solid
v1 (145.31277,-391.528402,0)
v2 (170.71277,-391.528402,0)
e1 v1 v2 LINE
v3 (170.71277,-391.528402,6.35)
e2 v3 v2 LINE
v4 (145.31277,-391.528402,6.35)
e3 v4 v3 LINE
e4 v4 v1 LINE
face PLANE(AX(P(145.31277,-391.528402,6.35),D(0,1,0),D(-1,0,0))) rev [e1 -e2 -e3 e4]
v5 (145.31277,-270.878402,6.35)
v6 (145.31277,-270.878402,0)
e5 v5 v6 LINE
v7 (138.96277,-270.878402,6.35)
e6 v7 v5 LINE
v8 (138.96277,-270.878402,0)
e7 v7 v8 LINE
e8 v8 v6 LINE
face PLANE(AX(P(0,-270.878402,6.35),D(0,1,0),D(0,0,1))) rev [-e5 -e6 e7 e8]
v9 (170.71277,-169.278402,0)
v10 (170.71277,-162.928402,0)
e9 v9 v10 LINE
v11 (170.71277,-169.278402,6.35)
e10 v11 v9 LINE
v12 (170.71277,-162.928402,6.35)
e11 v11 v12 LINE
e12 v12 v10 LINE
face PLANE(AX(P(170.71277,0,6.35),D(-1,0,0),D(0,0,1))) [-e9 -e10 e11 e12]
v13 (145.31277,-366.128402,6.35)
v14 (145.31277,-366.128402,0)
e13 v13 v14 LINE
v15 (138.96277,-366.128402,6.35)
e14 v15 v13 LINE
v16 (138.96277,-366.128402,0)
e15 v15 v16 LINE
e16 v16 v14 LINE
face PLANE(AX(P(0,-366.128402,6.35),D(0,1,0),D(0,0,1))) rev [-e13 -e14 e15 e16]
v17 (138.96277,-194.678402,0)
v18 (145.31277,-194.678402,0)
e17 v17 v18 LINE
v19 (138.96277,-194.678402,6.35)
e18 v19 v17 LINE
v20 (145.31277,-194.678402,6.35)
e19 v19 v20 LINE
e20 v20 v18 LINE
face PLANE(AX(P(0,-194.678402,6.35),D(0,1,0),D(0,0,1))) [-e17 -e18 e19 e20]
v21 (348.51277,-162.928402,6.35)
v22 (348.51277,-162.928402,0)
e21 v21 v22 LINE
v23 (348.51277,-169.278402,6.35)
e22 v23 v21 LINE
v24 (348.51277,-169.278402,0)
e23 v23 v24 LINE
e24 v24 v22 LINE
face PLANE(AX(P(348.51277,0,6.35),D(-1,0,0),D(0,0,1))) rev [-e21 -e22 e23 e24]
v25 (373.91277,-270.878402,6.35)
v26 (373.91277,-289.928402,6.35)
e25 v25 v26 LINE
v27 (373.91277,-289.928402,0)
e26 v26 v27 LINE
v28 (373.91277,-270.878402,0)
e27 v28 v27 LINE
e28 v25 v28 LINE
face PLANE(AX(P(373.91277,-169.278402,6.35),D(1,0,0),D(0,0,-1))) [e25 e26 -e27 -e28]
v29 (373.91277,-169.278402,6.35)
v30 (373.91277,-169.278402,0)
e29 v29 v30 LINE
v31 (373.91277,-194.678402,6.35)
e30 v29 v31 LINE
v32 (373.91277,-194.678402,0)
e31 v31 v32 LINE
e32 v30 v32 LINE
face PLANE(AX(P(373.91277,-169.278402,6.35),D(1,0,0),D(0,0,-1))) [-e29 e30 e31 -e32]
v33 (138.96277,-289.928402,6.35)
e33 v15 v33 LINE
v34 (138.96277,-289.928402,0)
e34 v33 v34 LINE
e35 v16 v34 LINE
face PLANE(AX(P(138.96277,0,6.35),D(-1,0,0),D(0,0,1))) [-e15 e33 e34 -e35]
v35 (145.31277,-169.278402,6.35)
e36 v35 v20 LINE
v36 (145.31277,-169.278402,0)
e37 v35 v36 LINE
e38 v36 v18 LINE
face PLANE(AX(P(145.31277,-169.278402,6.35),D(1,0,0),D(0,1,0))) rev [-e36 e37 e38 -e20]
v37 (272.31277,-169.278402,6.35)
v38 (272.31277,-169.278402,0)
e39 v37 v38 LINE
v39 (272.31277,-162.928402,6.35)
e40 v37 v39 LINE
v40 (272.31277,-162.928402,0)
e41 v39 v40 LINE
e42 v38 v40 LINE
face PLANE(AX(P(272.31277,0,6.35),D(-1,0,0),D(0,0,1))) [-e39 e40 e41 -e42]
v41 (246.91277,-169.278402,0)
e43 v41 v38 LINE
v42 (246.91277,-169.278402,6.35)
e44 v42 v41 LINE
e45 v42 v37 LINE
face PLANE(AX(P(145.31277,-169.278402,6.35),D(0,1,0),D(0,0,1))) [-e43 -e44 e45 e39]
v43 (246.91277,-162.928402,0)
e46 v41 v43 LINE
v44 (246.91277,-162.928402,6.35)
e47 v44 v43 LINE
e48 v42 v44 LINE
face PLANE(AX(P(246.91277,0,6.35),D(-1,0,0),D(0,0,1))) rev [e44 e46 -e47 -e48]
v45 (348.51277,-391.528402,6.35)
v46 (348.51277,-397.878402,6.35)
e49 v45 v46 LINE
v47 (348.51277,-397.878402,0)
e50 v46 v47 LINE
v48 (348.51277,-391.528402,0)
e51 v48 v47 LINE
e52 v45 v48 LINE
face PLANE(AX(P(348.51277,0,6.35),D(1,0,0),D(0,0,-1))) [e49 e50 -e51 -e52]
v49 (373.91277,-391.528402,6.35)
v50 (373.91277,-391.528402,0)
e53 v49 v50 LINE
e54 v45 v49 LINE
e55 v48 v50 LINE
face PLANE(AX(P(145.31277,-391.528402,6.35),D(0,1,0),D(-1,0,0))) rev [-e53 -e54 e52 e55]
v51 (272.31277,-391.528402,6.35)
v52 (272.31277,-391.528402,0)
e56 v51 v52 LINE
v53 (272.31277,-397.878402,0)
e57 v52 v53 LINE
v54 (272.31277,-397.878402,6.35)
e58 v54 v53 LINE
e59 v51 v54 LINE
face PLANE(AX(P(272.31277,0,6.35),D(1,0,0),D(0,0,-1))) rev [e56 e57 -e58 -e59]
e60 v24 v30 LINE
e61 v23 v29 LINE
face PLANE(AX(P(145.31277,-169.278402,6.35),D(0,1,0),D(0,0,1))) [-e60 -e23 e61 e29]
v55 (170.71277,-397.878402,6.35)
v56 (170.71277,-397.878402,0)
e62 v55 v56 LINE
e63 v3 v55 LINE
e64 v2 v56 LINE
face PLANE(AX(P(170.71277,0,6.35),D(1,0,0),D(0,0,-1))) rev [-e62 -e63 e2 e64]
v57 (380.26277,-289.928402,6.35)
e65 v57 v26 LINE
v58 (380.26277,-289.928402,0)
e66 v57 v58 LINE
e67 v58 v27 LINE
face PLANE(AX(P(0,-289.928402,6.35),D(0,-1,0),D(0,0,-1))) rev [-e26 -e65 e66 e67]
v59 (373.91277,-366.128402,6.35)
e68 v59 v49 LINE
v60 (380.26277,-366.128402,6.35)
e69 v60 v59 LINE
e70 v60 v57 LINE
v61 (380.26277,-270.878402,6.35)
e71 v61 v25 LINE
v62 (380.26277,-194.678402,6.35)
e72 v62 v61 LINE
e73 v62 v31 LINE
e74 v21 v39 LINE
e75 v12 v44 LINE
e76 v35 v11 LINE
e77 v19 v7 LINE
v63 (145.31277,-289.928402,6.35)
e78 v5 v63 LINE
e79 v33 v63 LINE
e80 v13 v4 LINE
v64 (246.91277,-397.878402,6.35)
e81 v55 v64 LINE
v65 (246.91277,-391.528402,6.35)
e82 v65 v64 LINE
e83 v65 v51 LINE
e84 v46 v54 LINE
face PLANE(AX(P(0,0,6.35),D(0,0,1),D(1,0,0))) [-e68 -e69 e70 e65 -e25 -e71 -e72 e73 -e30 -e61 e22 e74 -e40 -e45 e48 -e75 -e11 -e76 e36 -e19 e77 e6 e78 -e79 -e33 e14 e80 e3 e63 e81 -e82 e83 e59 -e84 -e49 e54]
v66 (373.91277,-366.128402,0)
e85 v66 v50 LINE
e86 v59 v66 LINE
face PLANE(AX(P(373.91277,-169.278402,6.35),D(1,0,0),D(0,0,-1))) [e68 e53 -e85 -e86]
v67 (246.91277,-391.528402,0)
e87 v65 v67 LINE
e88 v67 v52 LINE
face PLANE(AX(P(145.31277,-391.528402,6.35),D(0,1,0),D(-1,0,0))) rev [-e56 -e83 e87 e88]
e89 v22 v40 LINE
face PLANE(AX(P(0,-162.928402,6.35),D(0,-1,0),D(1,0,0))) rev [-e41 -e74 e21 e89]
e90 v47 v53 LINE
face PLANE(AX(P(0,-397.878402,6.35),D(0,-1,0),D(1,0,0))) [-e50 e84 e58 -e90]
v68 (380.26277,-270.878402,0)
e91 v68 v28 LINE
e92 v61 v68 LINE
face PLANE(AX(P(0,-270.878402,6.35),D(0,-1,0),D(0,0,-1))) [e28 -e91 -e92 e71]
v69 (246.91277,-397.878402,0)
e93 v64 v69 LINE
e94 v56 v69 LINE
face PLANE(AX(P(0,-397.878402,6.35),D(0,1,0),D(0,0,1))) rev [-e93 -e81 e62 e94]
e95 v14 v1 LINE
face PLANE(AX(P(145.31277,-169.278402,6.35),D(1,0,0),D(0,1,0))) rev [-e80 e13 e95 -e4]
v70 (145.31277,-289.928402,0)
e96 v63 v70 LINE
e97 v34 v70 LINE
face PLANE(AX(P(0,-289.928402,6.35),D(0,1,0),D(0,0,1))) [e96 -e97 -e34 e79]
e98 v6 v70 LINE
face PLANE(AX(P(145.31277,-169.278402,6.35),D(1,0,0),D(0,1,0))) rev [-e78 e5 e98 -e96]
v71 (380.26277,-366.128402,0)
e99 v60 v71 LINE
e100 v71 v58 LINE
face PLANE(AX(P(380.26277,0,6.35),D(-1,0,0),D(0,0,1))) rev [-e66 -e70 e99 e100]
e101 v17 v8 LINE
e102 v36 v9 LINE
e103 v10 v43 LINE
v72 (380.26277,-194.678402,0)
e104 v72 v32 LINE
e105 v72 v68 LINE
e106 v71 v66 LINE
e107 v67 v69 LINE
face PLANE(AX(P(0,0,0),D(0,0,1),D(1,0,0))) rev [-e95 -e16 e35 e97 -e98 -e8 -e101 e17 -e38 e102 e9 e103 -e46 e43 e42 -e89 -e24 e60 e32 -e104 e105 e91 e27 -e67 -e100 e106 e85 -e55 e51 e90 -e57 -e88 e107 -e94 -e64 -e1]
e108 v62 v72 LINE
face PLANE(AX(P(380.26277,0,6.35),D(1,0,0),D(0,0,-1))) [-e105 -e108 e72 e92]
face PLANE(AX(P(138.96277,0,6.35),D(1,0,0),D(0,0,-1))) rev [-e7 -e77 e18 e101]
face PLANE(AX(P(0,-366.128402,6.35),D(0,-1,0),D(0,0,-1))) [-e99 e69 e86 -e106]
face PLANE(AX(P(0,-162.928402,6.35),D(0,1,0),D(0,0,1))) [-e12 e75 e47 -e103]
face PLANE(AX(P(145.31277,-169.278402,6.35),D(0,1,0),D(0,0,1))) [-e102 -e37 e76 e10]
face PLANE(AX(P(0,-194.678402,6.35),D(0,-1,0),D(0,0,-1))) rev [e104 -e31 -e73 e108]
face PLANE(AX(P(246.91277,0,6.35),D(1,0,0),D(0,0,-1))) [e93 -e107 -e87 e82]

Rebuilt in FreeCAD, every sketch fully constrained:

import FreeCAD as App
import Part
import Sketcher
from FreeCAD import Vector
Q = App.Units.Quantity


def add_polygon(sketch, points):
    """Adds a closed chain of lines whose ends are joined by coincident constraints."""
    first, n = sketch.GeometryCount, len(points)
    for a, b in zip(points, points[1:] + points[:1]):
        sketch.addGeometry(Part.LineSegment(App.Vector(*a, 0), App.Vector(*b, 0)), False)
    for i in range(n):
        sketch.addConstraint(Sketcher.Constraint("Coincident", first + i, 2, first + (i + 1) % n, 1))

doc = App.newDocument("Part")
body = doc.addObject("PartDesign::Body", "Body")

sketch1 = body.newObject("Sketcher::SketchObject", "Sketch")
sketch1.AttachmentSupport = (doc.getObject("XY_Plane"), [""])
sketch1.MapMode = "FlatFace"
add_polygon(sketch1, [(170.71277, -169.278402), (145.31277, -169.278402), (145.31277, -194.678402), (138.96277, -194.678402), (138.96277, -270.878402), (145.31277, -270.878402), (145.31277, -289.928402), (138.96277, -289.928402), (138.96277, -366.128402), (145.31277, -366.128402), (145.31277, -391.528402), (170.71277, -391.528402), (170.71277, -397.878402), (246.91277, -397.878402), (246.91277, -391.528402), (272.31277, -391.528402), (272.31277, -397.878402), (348.51277, -397.878402), (348.51277, -391.528402), (373.91277, -391.528402), (373.91277, -366.128402), (380.26277, -366.128402), (380.26277, -289.928402), (373.91277, -289.928402), (373.91277, -270.878402), (380.26277, -270.878402), (380.26277, -194.678402), (373.91277, -194.678402), (373.91277, -169.278402), (348.51277, -169.278402), (348.51277, -162.928402), (272.31277, -162.928402), (272.31277, -169.278402), (246.91277, -169.278402), (246.91277, -162.928402), (170.71277, -162.928402)])
sketch1.addConstraint([
    Sketcher.Constraint("Horizontal", 0),
    Sketcher.Constraint("Vertical", 1),
    Sketcher.Constraint("Horizontal", 2),
    Sketcher.Constraint("Vertical", 3),
    Sketcher.Constraint("Horizontal", 4),
    Sketcher.Constraint("Vertical", 5),
    Sketcher.Constraint("Horizontal", 6),
    Sketcher.Constraint("Vertical", 7),
    Sketcher.Constraint("Horizontal", 8),
    Sketcher.Constraint("Vertical", 9),
    Sketcher.Constraint("Horizontal", 10),
    Sketcher.Constraint("Vertical", 11),
    Sketcher.Constraint("Horizontal", 12),
    Sketcher.Constraint("Vertical", 13),
    Sketcher.Constraint("Horizontal", 14),
    Sketcher.Constraint("Vertical", 15),
    Sketcher.Constraint("Horizontal", 16),
    Sketcher.Constraint("Vertical", 17),
    Sketcher.Constraint("Horizontal", 18),
    Sketcher.Constraint("Vertical", 19),
    Sketcher.Constraint("Horizontal", 20),
    Sketcher.Constraint("Vertical", 21),
    Sketcher.Constraint("Horizontal", 22),
    Sketcher.Constraint("Vertical", 23),
    Sketcher.Constraint("Horizontal", 24),
    Sketcher.Constraint("Vertical", 25),
    Sketcher.Constraint("Horizontal", 26),
    Sketcher.Constraint("Vertical", 27),
    Sketcher.Constraint("Horizontal", 28),
    Sketcher.Constraint("Vertical", 29),
    Sketcher.Constraint("Horizontal", 30),
    Sketcher.Constraint("Vertical", 31),
    Sketcher.Constraint("Horizontal", 32),
    Sketcher.Constraint("Vertical", 33),
    Sketcher.Constraint("Horizontal", 34),
    Sketcher.Constraint("Vertical", 35),
    Sketcher.Constraint("Horizontal", 10, 2, 13, 2),
    Sketcher.Constraint("Horizontal", 12, 2, 15, 2),
    Sketcher.Constraint("Horizontal", 14, 2, 17, 2),
    Sketcher.Constraint("Horizontal", 8, 2, 19, 2),
    Sketcher.Constraint("Horizontal", 6, 2, 21, 2),
    Sketcher.Constraint("Horizontal", 4, 2, 23, 2),
    Sketcher.Constraint("Horizontal", 2, 2, 25, 2),
    Sketcher.Constraint("Horizontal", 0, 2, 27, 2),
    Sketcher.Constraint("Horizontal", 28, 2, 31, 2),
    Sketcher.Constraint("Horizontal", 30, 2, 33, 2),
    Sketcher.Constraint("Vertical", 1, 2, 4, 2),
    Sketcher.Constraint("Vertical", 3, 2, 6, 2),
    Sketcher.Constraint("Vertical", 5, 2, 8, 2),
    Sketcher.Constraint("Vertical", 19, 2, 22, 2),
    Sketcher.Constraint("Vertical", 21, 2, 24, 2),
    Sketcher.Constraint("Vertical", 23, 2, 26, 2),
    Sketcher.Constraint("Vertical", 17, 2, 28, 2),
    Sketcher.Constraint("Vertical", 15, 2, 30, 2),
    Sketcher.Constraint("Vertical", 13, 2, 32, 2),
    Sketcher.Constraint("Vertical", 11, 2, 34, 2),
    Sketcher.Constraint("Equal", 10, 14),
    Sketcher.Constraint("Equal", 12, 16),
    Sketcher.Constraint("Equal", 14, 18),
    Sketcher.Constraint("Equal", 8, 20),
    Sketcher.Constraint("Equal", 32, 1),
    Sketcher.Constraint("Equal", 34, 3),
    Sketcher.Constraint("Equal", 3, 7),
    Sketcher.Constraint("Equal", 1, 9),
    Sketcher.Constraint("Equal", 26, 11),
    Sketcher.Constraint("Equal", 17, 29),
    Sketcher.Constraint("DistanceX", 0, 2, 0, 1, Q("1 in")),
    Sketcher.Constraint("DistanceX", 12, 1, 12, 2, Q("3 in")),
    Sketcher.Constraint("DistanceX", 2, 2, 2, 1, Q("0.25 in")),
    Sketcher.Constraint("DistanceY", 5, 2, 5, 1, Q("0.75 in")),
    Sketcher.Constraint("DistanceY", 0, 2, -1, 1, 169.278402),
    Sketcher.Constraint("DistanceX", -1, 1, 0, 2, 145.31277),
])
pad1 = body.newObject("PartDesign::Pad", "Pad")
pad1.Profile = sketch1
pad1.Length = Q("0.25 in")

doc.recompute()
